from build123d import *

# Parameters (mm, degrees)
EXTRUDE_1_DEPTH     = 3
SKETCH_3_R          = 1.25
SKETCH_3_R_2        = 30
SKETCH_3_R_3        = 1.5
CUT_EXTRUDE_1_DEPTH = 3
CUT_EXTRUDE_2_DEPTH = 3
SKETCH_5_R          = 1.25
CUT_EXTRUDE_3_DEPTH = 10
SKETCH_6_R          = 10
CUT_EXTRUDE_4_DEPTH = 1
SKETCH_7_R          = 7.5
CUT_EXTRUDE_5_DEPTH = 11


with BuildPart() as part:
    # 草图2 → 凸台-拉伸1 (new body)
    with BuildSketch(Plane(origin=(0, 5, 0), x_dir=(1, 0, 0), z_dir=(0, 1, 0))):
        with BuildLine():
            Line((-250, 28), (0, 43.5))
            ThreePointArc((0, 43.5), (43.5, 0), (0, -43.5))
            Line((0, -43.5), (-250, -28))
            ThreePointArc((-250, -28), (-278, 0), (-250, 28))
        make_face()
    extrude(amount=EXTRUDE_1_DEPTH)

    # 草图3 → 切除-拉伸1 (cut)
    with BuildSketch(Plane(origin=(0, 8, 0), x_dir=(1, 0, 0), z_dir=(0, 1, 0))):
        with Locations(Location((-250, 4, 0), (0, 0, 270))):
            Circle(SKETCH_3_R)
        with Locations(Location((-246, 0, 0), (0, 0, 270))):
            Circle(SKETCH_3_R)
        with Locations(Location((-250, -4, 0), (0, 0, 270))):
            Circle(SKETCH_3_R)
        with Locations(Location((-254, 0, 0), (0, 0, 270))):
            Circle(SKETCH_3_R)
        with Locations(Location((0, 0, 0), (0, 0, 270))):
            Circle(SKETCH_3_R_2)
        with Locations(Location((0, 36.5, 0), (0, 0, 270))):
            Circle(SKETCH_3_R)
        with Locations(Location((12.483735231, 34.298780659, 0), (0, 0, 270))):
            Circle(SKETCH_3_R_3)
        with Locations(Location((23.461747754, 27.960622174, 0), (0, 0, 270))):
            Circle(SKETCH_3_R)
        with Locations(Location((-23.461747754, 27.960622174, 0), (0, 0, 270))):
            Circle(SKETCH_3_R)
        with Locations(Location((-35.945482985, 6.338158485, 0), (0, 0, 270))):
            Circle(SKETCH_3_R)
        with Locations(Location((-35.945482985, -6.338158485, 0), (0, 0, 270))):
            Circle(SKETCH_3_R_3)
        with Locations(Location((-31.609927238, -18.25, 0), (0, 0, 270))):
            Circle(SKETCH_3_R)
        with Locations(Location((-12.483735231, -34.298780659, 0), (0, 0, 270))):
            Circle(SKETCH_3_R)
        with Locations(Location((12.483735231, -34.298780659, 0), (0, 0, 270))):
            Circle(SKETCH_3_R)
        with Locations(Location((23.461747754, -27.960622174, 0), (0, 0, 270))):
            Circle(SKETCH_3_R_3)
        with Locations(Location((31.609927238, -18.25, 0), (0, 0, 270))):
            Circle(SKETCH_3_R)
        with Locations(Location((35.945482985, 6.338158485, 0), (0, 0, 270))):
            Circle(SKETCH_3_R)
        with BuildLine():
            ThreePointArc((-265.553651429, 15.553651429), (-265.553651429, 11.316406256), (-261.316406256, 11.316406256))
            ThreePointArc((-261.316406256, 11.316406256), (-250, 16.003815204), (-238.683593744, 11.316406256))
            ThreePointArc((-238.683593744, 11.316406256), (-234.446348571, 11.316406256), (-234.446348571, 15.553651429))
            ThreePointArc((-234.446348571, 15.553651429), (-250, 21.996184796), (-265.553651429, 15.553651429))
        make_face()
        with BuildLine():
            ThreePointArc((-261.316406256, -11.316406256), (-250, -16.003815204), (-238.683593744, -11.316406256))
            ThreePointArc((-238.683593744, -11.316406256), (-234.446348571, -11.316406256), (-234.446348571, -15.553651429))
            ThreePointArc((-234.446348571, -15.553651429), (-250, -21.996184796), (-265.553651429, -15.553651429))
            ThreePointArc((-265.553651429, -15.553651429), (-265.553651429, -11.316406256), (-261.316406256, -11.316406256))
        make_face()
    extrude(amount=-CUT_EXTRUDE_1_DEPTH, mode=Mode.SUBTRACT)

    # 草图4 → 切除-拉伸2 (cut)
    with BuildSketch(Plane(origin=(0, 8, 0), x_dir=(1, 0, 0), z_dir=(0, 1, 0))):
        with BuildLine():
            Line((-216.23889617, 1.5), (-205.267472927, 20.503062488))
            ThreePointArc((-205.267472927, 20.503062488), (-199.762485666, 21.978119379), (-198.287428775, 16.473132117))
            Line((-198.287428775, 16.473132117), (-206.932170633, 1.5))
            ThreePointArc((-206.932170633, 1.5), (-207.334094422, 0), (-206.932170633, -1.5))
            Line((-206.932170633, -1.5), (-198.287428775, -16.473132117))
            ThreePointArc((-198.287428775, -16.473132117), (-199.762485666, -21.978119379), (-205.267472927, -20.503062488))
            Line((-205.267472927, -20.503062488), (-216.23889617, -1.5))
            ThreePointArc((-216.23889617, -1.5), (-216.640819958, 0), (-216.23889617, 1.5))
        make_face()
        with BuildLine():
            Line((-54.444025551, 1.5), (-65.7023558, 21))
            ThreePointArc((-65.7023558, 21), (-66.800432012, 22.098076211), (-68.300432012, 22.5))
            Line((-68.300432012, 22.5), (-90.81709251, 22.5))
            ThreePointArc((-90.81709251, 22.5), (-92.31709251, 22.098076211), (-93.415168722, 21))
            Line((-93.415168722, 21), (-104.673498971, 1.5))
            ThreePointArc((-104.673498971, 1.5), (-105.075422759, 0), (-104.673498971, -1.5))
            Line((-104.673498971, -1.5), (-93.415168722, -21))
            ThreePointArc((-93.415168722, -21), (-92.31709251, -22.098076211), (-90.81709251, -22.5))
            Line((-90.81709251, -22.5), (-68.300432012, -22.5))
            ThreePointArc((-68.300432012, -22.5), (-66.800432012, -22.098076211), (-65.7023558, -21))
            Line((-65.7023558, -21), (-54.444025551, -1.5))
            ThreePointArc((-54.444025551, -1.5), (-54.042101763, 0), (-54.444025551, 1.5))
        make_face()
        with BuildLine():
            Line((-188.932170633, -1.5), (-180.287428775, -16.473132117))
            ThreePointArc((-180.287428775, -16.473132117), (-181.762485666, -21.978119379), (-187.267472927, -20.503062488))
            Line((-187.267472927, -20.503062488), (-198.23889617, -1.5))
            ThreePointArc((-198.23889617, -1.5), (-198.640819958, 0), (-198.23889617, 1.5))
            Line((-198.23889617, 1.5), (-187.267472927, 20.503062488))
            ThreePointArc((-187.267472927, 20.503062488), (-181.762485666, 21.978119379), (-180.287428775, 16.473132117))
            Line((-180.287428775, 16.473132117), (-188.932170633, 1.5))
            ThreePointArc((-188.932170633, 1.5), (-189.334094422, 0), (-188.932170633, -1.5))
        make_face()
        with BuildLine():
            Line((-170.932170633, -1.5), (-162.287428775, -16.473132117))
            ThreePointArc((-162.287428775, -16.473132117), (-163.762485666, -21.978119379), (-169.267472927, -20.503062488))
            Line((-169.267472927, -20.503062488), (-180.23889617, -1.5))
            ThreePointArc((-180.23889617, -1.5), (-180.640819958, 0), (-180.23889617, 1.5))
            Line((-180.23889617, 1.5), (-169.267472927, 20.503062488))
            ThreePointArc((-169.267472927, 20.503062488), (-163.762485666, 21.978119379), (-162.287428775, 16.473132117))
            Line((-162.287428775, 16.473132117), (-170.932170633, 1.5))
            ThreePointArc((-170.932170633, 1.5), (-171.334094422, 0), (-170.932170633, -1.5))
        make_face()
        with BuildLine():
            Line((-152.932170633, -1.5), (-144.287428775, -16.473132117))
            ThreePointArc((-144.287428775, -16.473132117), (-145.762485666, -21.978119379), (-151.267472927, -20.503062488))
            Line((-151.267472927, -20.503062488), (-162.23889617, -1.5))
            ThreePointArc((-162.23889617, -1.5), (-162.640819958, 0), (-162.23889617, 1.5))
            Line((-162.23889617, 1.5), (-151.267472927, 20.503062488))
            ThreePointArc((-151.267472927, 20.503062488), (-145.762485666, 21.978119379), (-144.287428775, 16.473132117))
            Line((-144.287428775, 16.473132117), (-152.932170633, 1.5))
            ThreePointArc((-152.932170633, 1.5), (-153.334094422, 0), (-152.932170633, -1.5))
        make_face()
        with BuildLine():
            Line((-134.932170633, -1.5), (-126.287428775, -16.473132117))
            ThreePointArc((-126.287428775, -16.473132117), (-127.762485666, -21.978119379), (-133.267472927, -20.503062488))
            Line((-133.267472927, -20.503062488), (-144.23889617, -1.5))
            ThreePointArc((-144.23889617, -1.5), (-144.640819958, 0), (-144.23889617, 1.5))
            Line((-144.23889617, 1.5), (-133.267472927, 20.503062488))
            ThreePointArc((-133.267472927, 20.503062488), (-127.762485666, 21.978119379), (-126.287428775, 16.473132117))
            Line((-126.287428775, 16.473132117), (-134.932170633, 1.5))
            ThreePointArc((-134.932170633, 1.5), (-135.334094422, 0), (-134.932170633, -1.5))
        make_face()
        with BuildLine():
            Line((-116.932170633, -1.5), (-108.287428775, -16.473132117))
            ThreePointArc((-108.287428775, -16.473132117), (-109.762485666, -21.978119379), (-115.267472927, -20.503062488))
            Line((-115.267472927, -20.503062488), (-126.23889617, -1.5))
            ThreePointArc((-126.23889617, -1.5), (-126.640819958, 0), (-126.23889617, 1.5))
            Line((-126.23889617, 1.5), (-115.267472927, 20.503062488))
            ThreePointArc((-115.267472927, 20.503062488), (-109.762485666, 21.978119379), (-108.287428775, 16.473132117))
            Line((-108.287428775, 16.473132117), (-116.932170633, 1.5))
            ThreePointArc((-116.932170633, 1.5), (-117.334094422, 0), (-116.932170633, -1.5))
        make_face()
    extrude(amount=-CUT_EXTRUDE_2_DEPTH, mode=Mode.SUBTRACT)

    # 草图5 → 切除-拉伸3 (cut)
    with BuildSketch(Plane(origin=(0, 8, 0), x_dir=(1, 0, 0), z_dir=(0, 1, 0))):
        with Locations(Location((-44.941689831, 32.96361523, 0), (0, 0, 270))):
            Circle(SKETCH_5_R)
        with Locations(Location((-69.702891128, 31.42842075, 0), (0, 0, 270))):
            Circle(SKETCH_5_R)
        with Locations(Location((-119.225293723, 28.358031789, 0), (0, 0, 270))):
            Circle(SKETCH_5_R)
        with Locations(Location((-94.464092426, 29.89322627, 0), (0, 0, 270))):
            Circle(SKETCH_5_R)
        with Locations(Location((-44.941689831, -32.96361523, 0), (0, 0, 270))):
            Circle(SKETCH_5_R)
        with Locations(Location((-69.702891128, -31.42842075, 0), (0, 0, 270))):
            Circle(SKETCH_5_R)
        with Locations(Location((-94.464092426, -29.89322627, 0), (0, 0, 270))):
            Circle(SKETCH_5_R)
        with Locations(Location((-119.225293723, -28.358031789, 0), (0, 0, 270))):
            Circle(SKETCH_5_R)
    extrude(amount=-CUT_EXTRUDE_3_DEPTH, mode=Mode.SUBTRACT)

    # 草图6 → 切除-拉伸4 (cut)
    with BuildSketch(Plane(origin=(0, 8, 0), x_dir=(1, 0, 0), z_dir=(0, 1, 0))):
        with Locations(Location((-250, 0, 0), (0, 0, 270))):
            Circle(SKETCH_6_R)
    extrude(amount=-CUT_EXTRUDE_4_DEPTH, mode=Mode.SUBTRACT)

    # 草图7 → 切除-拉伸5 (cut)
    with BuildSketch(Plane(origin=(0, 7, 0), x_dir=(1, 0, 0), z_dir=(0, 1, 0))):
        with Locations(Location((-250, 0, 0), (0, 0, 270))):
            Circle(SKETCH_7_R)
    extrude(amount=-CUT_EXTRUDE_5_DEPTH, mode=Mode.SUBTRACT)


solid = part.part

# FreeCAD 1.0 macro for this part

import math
import FreeCAD as App
import Part
import Sketcher
Q = App.Units.Quantity

doc = App.newDocument("Part")
body = doc.addObject("PartDesign::Body", "Body")

# Sketch on XZ plane
sketch1 = body.newObject("Sketcher::SketchObject", "Sketch")
sketch1.AttachmentSupport = (doc.getObject("XZ_Plane"), [""])
sketch1.MapMode = "FlatFace"
sketch1.AttachmentOffset = App.Placement(App.Vector(0, 0, -5), App.Rotation())
sketch1.addGeometry([
    Part.LineSegment(App.Vector(0, -44, 0), App.Vector(-250, -28, 0)),
    Part.ArcOfCircle(Part.Circle(App.Vector(-250, 0, 0), App.Vector(0, 0, 1), 28), math.radians(90), math.radians(270)),
    Part.LineSegment(App.Vector(-250, 28, 0), App.Vector(0, 44, 0)),
    Part.ArcOfCircle(Part.Circle(App.Vector(0, 0, 0), App.Vector(0, 0, 1), 44), math.radians(-90), math.radians(90)),
], False)
sketch1.addConstraint([
    Sketcher.Constraint("Coincident", 0, 2, 1, 2),
    Sketcher.Constraint("Coincident", 1, 1, 2, 1),
    Sketcher.Constraint("Coincident", 2, 2, 3, 2),
    Sketcher.Constraint("Coincident", 3, 1, 0, 1),
    Sketcher.Constraint("Coincident", 3, 3, -1, 1),
    Sketcher.Constraint("Symmetric", 0, 2, 1, 1, -1),
    Sketcher.Constraint("PointOnObject", 2, 2, -2),
    Sketcher.Constraint("PointOnObject", 3, 1, -2),
    Sketcher.Constraint("Vertical", 1, 3, 0, 2),
    Sketcher.Constraint("Radius", 1, Q("28 mm")),
    Sketcher.Constraint("Radius", 3, Q("43.5 mm")),
    Sketcher.Constraint("DistanceX", 1, 3, -1, 1, Q("250 mm")),
])
pad1 = body.newObject("PartDesign::Pad", "Pad")
pad1.Profile = sketch1
pad1.Length = 3
pad1.Reversed = True

# Sketch on XZ plane
sketch2 = body.newObject("Sketcher::SketchObject", "Sketch001")
sketch2.AttachmentSupport = (doc.getObject("XZ_Plane"), [""])
sketch2.MapMode = "FlatFace"
sketch2.AttachmentOffset = App.Placement(App.Vector(0, 0, -8), App.Rotation())
sketch2.addGeometry([
    Part.Circle(App.Vector(-250, -4, 0), App.Vector(0, 0, 1), 1.2),  # 0
    Part.Circle(App.Vector(-246, 0, 0), App.Vector(0, 0, 1), 1.2),  # 1
    Part.Circle(App.Vector(-250, 4, 0), App.Vector(0, 0, 1), 1.2),  # 2
    Part.Circle(App.Vector(-254, 0, 0), App.Vector(0, 0, 1), 1.2),  # 3
    Part.Circle(App.Vector(0, 0, 0), App.Vector(0, 0, 1), 30),  # 4
    Part.Circle(App.Vector(0, -36.5, 0), App.Vector(0, 0, 1), 1.2),  # 5
    Part.Circle(App.Vector(12.5, -34.3, 0), App.Vector(0, 0, 1), 1.5),  # 6
    Part.Circle(App.Vector(23.5, -28, 0), App.Vector(0, 0, 1), 1.2),  # 7
    Part.Circle(App.Vector(-23.5, -28, 0), App.Vector(0, 0, 1), 1.2),  # 8
    Part.Circle(App.Vector(-35.9, -6.3, 0), App.Vector(0, 0, 1), 1.2),  # 9
    Part.Circle(App.Vector(-35.9, 6.3, 0), App.Vector(0, 0, 1), 1.5),  # 10
    Part.Circle(App.Vector(-31.6, 18.2, 0), App.Vector(0, 0, 1), 1.2),  # 11
    Part.Circle(App.Vector(-12.5, 34.3, 0), App.Vector(0, 0, 1), 1.2),  # 12
    Part.Circle(App.Vector(12.5, 34.3, 0), App.Vector(0, 0, 1), 1.2),  # 13
    Part.Circle(App.Vector(23.5, 28, 0), App.Vector(0, 0, 1), 1.5),  # 14
    Part.Circle(App.Vector(31.6, 18.2, 0), App.Vector(0, 0, 1), 1.2),  # 15
    Part.Circle(App.Vector(35.9, -6.3, 0), App.Vector(0, 0, 1), 1.2),  # 16
    Part.ArcOfCircle(Part.Circle(App.Vector(-263.4, -13.4, 0), App.Vector(0, 0, 1), 3), math.radians(45), math.radians(225)),  # 17
    Part.ArcOfCircle(Part.Circle(App.Vector(-250, 0, 0), App.Vector(0, 0, 1), 16), math.radians(-135), math.radians(-45)),  # 18
    Part.ArcOfCircle(Part.Circle(App.Vector(-236.6, -13.4, 0), App.Vector(0, 0, 1), 3), math.radians(-45), math.radians(135)),  # 19
    Part.ArcOfCircle(Part.Circle(App.Vector(-250, 0, 0), App.Vector(0, 0, 1), 22), math.radians(-135), math.radians(-45)),  # 20
    Part.ArcOfCircle(Part.Circle(App.Vector(-250, 0, 0), App.Vector(0, 0, 1), 16), math.radians(45), math.radians(135)),  # 21
    Part.ArcOfCircle(Part.Circle(App.Vector(-263.4, 13.4, 0), App.Vector(0, 0, 1), 3), math.radians(135), math.radians(315)),  # 22
    Part.ArcOfCircle(Part.Circle(App.Vector(-250, 0, 0), App.Vector(0, 0, 1), 22), math.radians(45), math.radians(135)),  # 23
    Part.ArcOfCircle(Part.Circle(App.Vector(-236.6, 13.4, 0), App.Vector(0, 0, 1), 3), math.radians(-135), math.radians(45)),  # 24
], False)
sketch2.addConstraint([
    Sketcher.Constraint("Tangent", 17, 1, 18, 1),
    Sketcher.Constraint("Tangent", 18, 2, 19, 2),
    Sketcher.Constraint("Tangent", 19, 1, 20, 2),
    Sketcher.Constraint("Tangent", 20, 1, 17, 2),
    Sketcher.Constraint("Tangent", 21, 2, 22, 2),
    Sketcher.Constraint("Tangent", 22, 1, 23, 2),
    Sketcher.Constraint("Tangent", 23, 1, 24, 2),
    Sketcher.Constraint("Tangent", 24, 1, 21, 1),
    Sketcher.Constraint("Coincident", 4, 3, -1, 1),
    Sketcher.Constraint("Coincident", 20, 3, 18, 3),
    Sketcher.Constraint("Coincident", 21, 3, 18, 3),
    Sketcher.Constraint("Coincident", 23, 3, 18, 3),
    Sketcher.Constraint("Equal", 0, 1),
    Sketcher.Constraint("Equal", 1, 2),
    Sketcher.Constraint("Equal", 2, 3),
    Sketcher.Constraint("Equal", 3, 5),
    Sketcher.Constraint("Equal", 5, 7),
    Sketcher.Constraint("Equal", 7, 8),
    Sketcher.Constraint("Equal", 8, 9),
    Sketcher.Constraint("Equal", 6, 10),
    Sketcher.Constraint("Equal", 9, 11),
    Sketcher.Constraint("Equal", 11, 12),
    Sketcher.Constraint("Equal", 12, 13),
    Sketcher.Constraint("Equal", 10, 14),
    Sketcher.Constraint("Equal", 13, 15),
    Sketcher.Constraint("Equal", 15, 16),
    Sketcher.Constraint("Equal", 18, 21),
    Sketcher.Constraint("Equal", 19, 22),
    Sketcher.Constraint("Symmetric", 6, 3, 12, 3, -1, 1),
    Sketcher.Constraint("Symmetric", 8, 3, 14, 3, -1, 1),
    Sketcher.Constraint("Symmetric", 10, 3, 16, 3, -1, 1),
    Sketcher.Constraint("Symmetric", 7, 3, 8, 3, -2),
    Sketcher.Constraint("Symmetric", 12, 3, 13, 3, -2),
    Sketcher.Constraint("Symmetric", 11, 3, 15, 3, -2),
    Sketcher.Constraint("Symmetric", 9, 3, 16, 3, -2),
    Sketcher.Constraint("Symmetric", 0, 3, 2, 3, -1),
    Sketcher.Constraint("Symmetric", 17, 3, 22, 3, -1),
    Sketcher.Constraint("PointOnObject", 1, 3, -1),
    Sketcher.Constraint("PointOnObject", 3, 3, -1),
    Sketcher.Constraint("PointOnObject", 5, 3, -2),
    Sketcher.Constraint("Horizontal", 17, 3, 19, 3),
    Sketcher.Constraint("Horizontal", 22, 3, 24, 3),
    Sketcher.Constraint("Vertical", 2, 3, 18, 3),
    Sketcher.Constraint("Diameter", 4, Q("60 mm")),
    Sketcher.Constraint("Diameter", 6, Q("3 mm")),
    Sketcher.Constraint("Diameter", 0, Q("2.5 mm")),
    Sketcher.Constraint("DistanceX", 0, 3, -1, 1, Q("250 mm")),
    Sketcher.Constraint("DistanceY", 0, 3, -1, 1, Q("4 mm")),
    Sketcher.Constraint("DistanceX", 1, 3, -1, 1, Q("246 mm")),
    Sketcher.Constraint("DistanceX", 3, 3, -1, 1, Q("254 mm")),
    Sketcher.Constraint("DistanceY", 5, 3, -1, 1, Q("36.5 mm")),
    Sketcher.Constraint("DistanceY", -1, 1, 11, 3, Q("18.25 mm")),
    Sketcher.Constraint("Radius", 17, Q("2.996185 mm")),
    Sketcher.Constraint("Radius", 18, Q("16.003815 mm")),
    Sketcher.Constraint("DistanceY", 6, 3, -1, 1, Q("34.298781 mm")),
    Sketcher.Constraint("DistanceY", 9, 3, -1, 1, Q("6.338158 mm")),
    Sketcher.Constraint("DistanceX", 17, 3, -1, 1, Q("263.435029 mm")),
    Sketcher.Constraint("DistanceY", 6, 3, 7, 3, Q("6.338158 mm")),
    Sketcher.Constraint("DistanceX", 9, 3, 6, 3, Q("48.429218 mm")),
    Sketcher.Constraint("DistanceX", 9, 3, 7, 3, Q("59.407231 mm")),
    Sketcher.Constraint("DistanceX", 11, 3, 8, 3, Q("8.148179 mm")),
    Sketcher.Constraint("DistanceX", 12, 3, 13, 3, Q("24.96747 mm")),
])
pocket1 = body.newObject("PartDesign::Pocket", "Pocket")
pocket1.Profile = sketch2
pocket1.Length = 3
pocket1.Reversed = True

# Sketch on XZ plane
sketch3 = body.newObject("Sketcher::SketchObject", "Sketch002")
sketch3.AttachmentSupport = (doc.getObject("XZ_Plane"), [""])
sketch3.MapMode = "FlatFace"
sketch3.AttachmentOffset = App.Placement(App.Vector(0, 0, -8), App.Rotation())
sketch3.addGeometry([
    Part.LineSegment(App.Vector(-205.3, -20.5, 0), App.Vector(-216.2, -1.5, 0)),  # 0
    Part.ArcOfCircle(Part.Circle(App.Vector(-213.6, 0, 0), App.Vector(0, 0, 1), 3), math.radians(150), math.radians(210)),  # 1
    Part.LineSegment(App.Vector(-216.2, 1.5, 0), App.Vector(-205.3, 20.5, 0)),  # 2
    Part.ArcOfCircle(Part.Circle(App.Vector(-201.8, 18.5, 0), App.Vector(0, 0, 1), 4), math.radians(-30), math.radians(150)),  # 3
    Part.LineSegment(App.Vector(-198.3, 16.5, 0), App.Vector(-206.9, 1.5, 0)),  # 4
    Part.ArcOfCircle(Part.Circle(App.Vector(-204.3, 0, 0), App.Vector(0, 0, 1), 3), math.radians(150), math.radians(210)),  # 5
    Part.LineSegment(App.Vector(-206.9, -1.5, 0), App.Vector(-198.3, -16.5, 0)),  # 6
    Part.ArcOfCircle(Part.Circle(App.Vector(-201.8, -18.5, 0), App.Vector(0, 0, 1), 4), math.radians(-150), math.radians(30)),  # 7
    Part.LineSegment(App.Vector(-54.4, -1.5, 0), App.Vector(-65.7, -21, 0)),  # 8
    Part.ArcOfCircle(Part.Circle(App.Vector(-68.3, -19.5, 0), App.Vector(0, 0, 1), 3), math.radians(-90), math.radians(-30)),  # 9
    Part.LineSegment(App.Vector(-68.3, -22.5, 0), App.Vector(-90.8, -22.5, 0)),  # 10
    Part.ArcOfCircle(Part.Circle(App.Vector(-90.8, -19.5, 0), App.Vector(0, 0, 1), 3), math.radians(-150), math.radians(-90)),  # 11
    Part.LineSegment(App.Vector(-93.4, -21, 0), App.Vector(-104.7, -1.5, 0)),  # 12
    Part.ArcOfCircle(Part.Circle(App.Vector(-102.1, 0, 0), App.Vector(0, 0, 1), 3), math.radians(150), math.radians(210)),  # 13
    Part.LineSegment(App.Vector(-104.7, 1.5, 0), App.Vector(-93.4, 21, 0)),  # 14
    Part.ArcOfCircle(Part.Circle(App.Vector(-90.8, 19.5, 0), App.Vector(0, 0, 1), 3), math.radians(90), math.radians(150)),  # 15
    Part.LineSegment(App.Vector(-90.8, 22.5, 0), App.Vector(-68.3, 22.5, 0)),  # 16
    Part.ArcOfCircle(Part.Circle(App.Vector(-68.3, 19.5, 0), App.Vector(0, 0, 1), 3), math.radians(30), math.radians(90)),  # 17
    Part.LineSegment(App.Vector(-65.7, 21, 0), App.Vector(-54.4, 1.5, 0)),  # 18
    Part.ArcOfCircle(Part.Circle(App.Vector(-57, 0, 0), App.Vector(0, 0, 1), 3), math.radians(-30), math.radians(30)),  # 19
    Part.LineSegment(App.Vector(-180.3, 16.5, 0), App.Vector(-188.9, 1.5, 0)),  # 20
    Part.ArcOfCircle(Part.Circle(App.Vector(-186.3, 0, 0), App.Vector(0, 0, 1), 3), math.radians(150), math.radians(210)),  # 21
    Part.LineSegment(App.Vector(-188.9, -1.5, 0), App.Vector(-180.3, -16.5, 0)),  # 22
    Part.ArcOfCircle(Part.Circle(App.Vector(-183.8, -18.5, 0), App.Vector(0, 0, 1), 4), math.radians(-150), math.radians(30)),  # 23
    Part.LineSegment(App.Vector(-187.3, -20.5, 0), App.Vector(-198.2, -1.5, 0)),  # 24
    Part.ArcOfCircle(Part.Circle(App.Vector(-195.6, 0, 0), App.Vector(0, 0, 1), 3), math.radians(150), math.radians(210)),  # 25
    Part.LineSegment(App.Vector(-198.2, 1.5, 0), App.Vector(-187.3, 20.5, 0)),  # 26
    Part.ArcOfCircle(Part.Circle(App.Vector(-183.8, 18.5, 0), App.Vector(0, 0, 1), 4), math.radians(-30), math.radians(150)),  # 27
    Part.LineSegment(App.Vector(-162.3, 16.5, 0), App.Vector(-170.9, 1.5, 0)),  # 28
    Part.ArcOfCircle(Part.Circle(App.Vector(-168.3, 0, 0), App.Vector(0, 0, 1), 3), math.radians(150), math.radians(210)),  # 29
    Part.LineSegment(App.Vector(-170.9, -1.5, 0), App.Vector(-162.3, -16.5, 0)),  # 30
    Part.ArcOfCircle(Part.Circle(App.Vector(-165.8, -18.5, 0), App.Vector(0, 0, 1), 4), math.radians(-150), math.radians(30)),  # 31
    Part.LineSegment(App.Vector(-169.3, -20.5, 0), App.Vector(-180.2, -1.5, 0)),  # 32
    Part.ArcOfCircle(Part.Circle(App.Vector(-177.6, 0, 0), App.Vector(0, 0, 1), 3), math.radians(150), math.radians(210)),  # 33
    Part.LineSegment(App.Vector(-180.2, 1.5, 0), App.Vector(-169.3, 20.5, 0)),  # 34
    Part.ArcOfCircle(Part.Circle(App.Vector(-165.8, 18.5, 0), App.Vector(0, 0, 1), 4), math.radians(-30), math.radians(150)),  # 35
    Part.LineSegment(App.Vector(-144.3, 16.5, 0), App.Vector(-152.9, 1.5, 0)),  # 36
    Part.ArcOfCircle(Part.Circle(App.Vector(-150.3, 0, 0), App.Vector(0, 0, 1), 3), math.radians(150), math.radians(210)),  # 37
    Part.LineSegment(App.Vector(-152.9, -1.5, 0), App.Vector(-144.3, -16.5, 0)),  # 38
    Part.ArcOfCircle(Part.Circle(App.Vector(-147.8, -18.5, 0), App.Vector(0, 0, 1), 4), math.radians(-150), math.radians(30)),  # 39
    Part.LineSegment(App.Vector(-151.3, -20.5, 0), App.Vector(-162.2, -1.5, 0)),  # 40
    Part.ArcOfCircle(Part.Circle(App.Vector(-159.6, 0, 0), App.Vector(0, 0, 1), 3), math.radians(150), math.radians(210)),  # 41
    Part.LineSegment(App.Vector(-162.2, 1.5, 0), App.Vector(-151.3, 20.5, 0)),  # 42
    Part.ArcOfCircle(Part.Circle(App.Vector(-147.8, 18.5, 0), App.Vector(0, 0, 1), 4), math.radians(-30), math.radians(150)),  # 43
    Part.LineSegment(App.Vector(-126.3, 16.5, 0), App.Vector(-134.9, 1.5, 0)),  # 44
    Part.ArcOfCircle(Part.Circle(App.Vector(-132.3, 0, 0), App.Vector(0, 0, 1), 3), math.radians(150), math.radians(210)),  # 45
    Part.LineSegment(App.Vector(-134.9, -1.5, 0), App.Vector(-126.3, -16.5, 0)),  # 46
    Part.ArcOfCircle(Part.Circle(App.Vector(-129.8, -18.5, 0), App.Vector(0, 0, 1), 4), math.radians(-150), math.radians(30)),  # 47
    Part.LineSegment(App.Vector(-133.3, -20.5, 0), App.Vector(-144.2, -1.5, 0)),  # 48
    Part.ArcOfCircle(Part.Circle(App.Vector(-141.6, 0, 0), App.Vector(0, 0, 1), 3), math.radians(150), math.radians(210)),  # 49
    Part.LineSegment(App.Vector(-144.2, 1.5, 0), App.Vector(-133.3, 20.5, 0)),  # 50
    Part.ArcOfCircle(Part.Circle(App.Vector(-129.8, 18.5, 0), App.Vector(0, 0, 1), 4), math.radians(-30), math.radians(150)),  # 51
    Part.LineSegment(App.Vector(-108.3, 16.5, 0), App.Vector(-116.9, 1.5, 0)),  # 52
    Part.ArcOfCircle(Part.Circle(App.Vector(-114.3, 0, 0), App.Vector(0, 0, 1), 3), math.radians(150), math.radians(210)),  # 53
    Part.LineSegment(App.Vector(-116.9, -1.5, 0), App.Vector(-108.3, -16.5, 0)),  # 54
    Part.ArcOfCircle(Part.Circle(App.Vector(-111.8, -18.5, 0), App.Vector(0, 0, 1), 4), math.radians(-150), math.radians(30)),  # 55
    Part.LineSegment(App.Vector(-115.3, -20.5, 0), App.Vector(-126.2, -1.5, 0)),  # 56
    Part.ArcOfCircle(Part.Circle(App.Vector(-123.6, 0, 0), App.Vector(0, 0, 1), 3), math.radians(150), math.radians(210)),  # 57
    Part.LineSegment(App.Vector(-126.2, 1.5, 0), App.Vector(-115.3, 20.5, 0)),  # 58
    Part.ArcOfCircle(Part.Circle(App.Vector(-111.8, 18.5, 0), App.Vector(0, 0, 1), 4), math.radians(-30), math.radians(150)),  # 59
], False)
sketch3.addConstraint([
    Sketcher.Constraint("Tangent", 0, 2, 1, 2),
    Sketcher.Constraint("Tangent", 1, 1, 2, 1),
    Sketcher.Constraint("Tangent", 2, 2, 3, 2),
    Sketcher.Constraint("Tangent", 3, 1, 4, 1),
    Sketcher.Constraint("Tangent", 4, 2, 5, 1),
    Sketcher.Constraint("Tangent", 5, 2, 6, 1),
    Sketcher.Constraint("Tangent", 6, 2, 7, 2),
    Sketcher.Constraint("Tangent", 7, 1, 0, 1),
    Sketcher.Constraint("Tangent", 8, 2, 9, 2),
    Sketcher.Constraint("Tangent", 9, 1, 10, 1),
    Sketcher.Constraint("Tangent", 10, 2, 11, 2),
    Sketcher.Constraint("Tangent", 11, 1, 12, 1),
    Sketcher.Constraint("Tangent", 12, 2, 13, 2),
    Sketcher.Constraint("Tangent", 13, 1, 14, 1),
    Sketcher.Constraint("Tangent", 14, 2, 15, 2),
    Sketcher.Constraint("Tangent", 15, 1, 16, 1),
    Sketcher.Constraint("Tangent", 16, 2, 17, 2),
    Sketcher.Constraint("Tangent", 17, 1, 18, 1),
    Sketcher.Constraint("Tangent", 18, 2, 19, 2),
    Sketcher.Constraint("Tangent", 19, 1, 8, 1),
    Sketcher.Constraint("Tangent", 20, 2, 21, 1),
    Sketcher.Constraint("Tangent", 21, 2, 22, 1),
    Sketcher.Constraint("Tangent", 22, 2, 23, 2),
    Sketcher.Constraint("Tangent", 23, 1, 24, 1),
    Sketcher.Constraint("Tangent", 24, 2, 25, 2),
    Sketcher.Constraint("Tangent", 25, 1, 26, 1),
    Sketcher.Constraint("Tangent", 26, 2, 27, 2),
    Sketcher.Constraint("Tangent", 27, 1, 20, 1),
    Sketcher.Constraint("Tangent", 28, 2, 29, 1),
    Sketcher.Constraint("Tangent", 29, 2, 30, 1),
    Sketcher.Constraint("Tangent", 30, 2, 31, 2),
    Sketcher.Constraint("Tangent", 31, 1, 32, 1),
    Sketcher.Constraint("Tangent", 32, 2, 33, 2),
    Sketcher.Constraint("Tangent", 33, 1, 34, 1),
    Sketcher.Constraint("Tangent", 34, 2, 35, 2),
    Sketcher.Constraint("Tangent", 35, 1, 28, 1),
    Sketcher.Constraint("Tangent", 36, 2, 37, 1),
    Sketcher.Constraint("Tangent", 37, 2, 38, 1),
    Sketcher.Constraint("Tangent", 38, 2, 39, 2),
    Sketcher.Constraint("Tangent", 39, 1, 40, 1),
    Sketcher.Constraint("Tangent", 40, 2, 41, 2),
    Sketcher.Constraint("Tangent", 41, 1, 42, 1),
    Sketcher.Constraint("Tangent", 42, 2, 43, 2),
    Sketcher.Constraint("Tangent", 43, 1, 36, 1),
    Sketcher.Constraint("Tangent", 44, 2, 45, 1),
    Sketcher.Constraint("Tangent", 45, 2, 46, 1),
    Sketcher.Constraint("Tangent", 46, 2, 47, 2),
    Sketcher.Constraint("Tangent", 47, 1, 48, 1),
    Sketcher.Constraint("Tangent", 48, 2, 49, 2),
    Sketcher.Constraint("Tangent", 49, 1, 50, 1),
    Sketcher.Constraint("Tangent", 50, 2, 51, 2),
    Sketcher.Constraint("Tangent", 51, 1, 44, 1),
    Sketcher.Constraint("Tangent", 52, 2, 53, 1),
    Sketcher.Constraint("Tangent", 53, 2, 54, 1),
    Sketcher.Constraint("Tangent", 54, 2, 55, 2),
    Sketcher.Constraint("Tangent", 55, 1, 56, 1),
    Sketcher.Constraint("Tangent", 56, 2, 57, 2),
    Sketcher.Constraint("Tangent", 57, 1, 58, 1),
    Sketcher.Constraint("Tangent", 58, 2, 59, 2),
    Sketcher.Constraint("Tangent", 59, 1, 52, 1),
    Sketcher.Constraint("Horizontal", 10),
    Sketcher.Constraint("Horizontal", 16),
    Sketcher.Constraint("Equal", 1, 5),
    Sketcher.Constraint("Equal", 3, 7),
    Sketcher.Constraint("Equal", 5, 9),
    Sketcher.Constraint("Equal", 9, 11),
    Sketcher.Constraint("Equal", 11, 13),
    Sketcher.Constraint("Equal", 13, 15),
    Sketcher.Constraint("Equal", 15, 17),
    Sketcher.Constraint("Equal", 17, 19),
    Sketcher.Constraint("Equal", 19, 21),
    Sketcher.Constraint("Equal", 7, 23),
    Sketcher.Constraint("Equal", 21, 25),
    Sketcher.Constraint("Equal", 23, 27),
    Sketcher.Constraint("Equal", 25, 29),
    Sketcher.Constraint("Equal", 27, 31),
    Sketcher.Constraint("Equal", 29, 33),
    Sketcher.Constraint("Equal", 31, 35),
    Sketcher.Constraint("Equal", 33, 37),
    Sketcher.Constraint("Equal", 35, 39),
    Sketcher.Constraint("Equal", 37, 41),
    Sketcher.Constraint("Equal", 39, 43),
    Sketcher.Constraint("Equal", 41, 45),
    Sketcher.Constraint("Equal", 43, 47),
    Sketcher.Constraint("Equal", 45, 49),
    Sketcher.Constraint("Equal", 47, 51),
    Sketcher.Constraint("Equal", 49, 53),
    Sketcher.Constraint("Equal", 51, 55),
    Sketcher.Constraint("Equal", 53, 57),
    Sketcher.Constraint("Equal", 55, 59),
    Sketcher.Constraint("Symmetric", 3, 3, 7, 3, -1),
    Sketcher.Constraint("Symmetric", 11, 3, 15, 3, -1),
    Sketcher.Constraint("Symmetric", 23, 3, 27, 3, -1),
    Sketcher.Constraint("Symmetric", 31, 3, 35, 3, -1),
    Sketcher.Constraint("Symmetric", 39, 3, 43, 3, -1),
    Sketcher.Constraint("Symmetric", 47, 3, 51, 3, -1),
    Sketcher.Constraint("Symmetric", 55, 3, 59, 3, -1),
    Sketcher.Constraint("Symmetric", 8, 2, 17, 1, -1),
    Sketcher.Constraint("PointOnObject", 1, 3, -1),
    Sketcher.Constraint("PointOnObject", 5, 3, -1),
    Sketcher.Constraint("PointOnObject", 13, 3, -1),
    Sketcher.Constraint("PointOnObject", 21, 3, -1),
    Sketcher.Constraint("PointOnObject", 25, 3, -1),
    Sketcher.Constraint("PointOnObject", 29, 3, -1),
    Sketcher.Constraint("PointOnObject", 33, 3, -1),
    Sketcher.Constraint("PointOnObject", 37, 3, -1),
    Sketcher.Constraint("PointOnObject", 41, 3, -1),
    Sketcher.Constraint("PointOnObject", 45, 3, -1),
    Sketcher.Constraint("PointOnObject", 49, 3, -1),
    Sketcher.Constraint("PointOnObject", 53, 3, -1),
    Sketcher.Constraint("PointOnObject", 57, 3, -1),
    Sketcher.Constraint("Parallel", 2, 4),
    Sketcher.Constraint("Parallel", 4, 8),
    Sketcher.Constraint("Parallel", 6, 12),
    Sketcher.Constraint("Parallel", 14, 20),
    Sketcher.Constraint("Parallel", 22, 24),
    Sketcher.Constraint("Parallel", 26, 28),
    Sketcher.Constraint("Parallel", 30, 32),
    Sketcher.Constraint("Parallel", 34, 36),
    Sketcher.Constraint("Parallel", 38, 40),
    Sketcher.Constraint("Parallel", 42, 44),
    Sketcher.Constraint("Parallel", 46, 48),
    Sketcher.Constraint("Parallel", 50, 52),
    Sketcher.Constraint("Parallel", 54, 56),
    Sketcher.Constraint("Horizontal", 7, 3, 23, 3),
    Sketcher.Constraint("Horizontal", 23, 3, 31, 3),
    Sketcher.Constraint("Horizontal", 31, 3, 39, 3),
    Sketcher.Constraint("Horizontal", 39, 3, 47, 3),
    Sketcher.Constraint("Horizontal", 47, 3, 55, 3),
    Sketcher.Constraint("Radius", 1, Q("3 mm")),
    Sketcher.Constraint("Angle", 0, Q("120 deg")),
    Sketcher.Constraint("DistanceY", 8, 2, -1, 1, Q("21 mm")),
    Sketcher.Constraint("Radius", 3, Q("4.02993 mm")),
    Sketcher.Constraint("DistanceX", 10, 2, 10, 1, Q("22.51666 mm")),
    Sketcher.Constraint("DistanceX", 19, 3, -1, 1, Q("57.042102 mm")),
    Sketcher.Constraint("DistanceX", 1, 3, -1, 1, Q("213.64082 mm")),
    Sketcher.Constraint("DistanceX", 3, 3, -1, 1, Q("201.777451 mm")),
    Sketcher.Constraint("DistanceX", 23, 3, -1, 1, Q("183.777451 mm")),
    Sketcher.Constraint("DistanceX", 31, 3, -1, 1, Q("165.777451 mm")),
    Sketcher.Constraint("DistanceX", 39, 3, -1, 1, Q("147.777451 mm")),
    Sketcher.Constraint("DistanceX", 47, 3, -1, 1, Q("129.777451 mm")),
    Sketcher.Constraint("DistanceX", 55, 3, -1, 1, Q("111.777451 mm")),
])
pocket2 = body.newObject("PartDesign::Pocket", "Pocket001")
pocket2.Profile = sketch3
pocket2.Length = 3
pocket2.Reversed = True

# Sketch on XZ plane
sketch4 = body.newObject("Sketcher::SketchObject", "Sketch003")
sketch4.AttachmentSupport = (doc.getObject("XZ_Plane"), [""])
sketch4.MapMode = "FlatFace"
sketch4.AttachmentOffset = App.Placement(App.Vector(0, 0, -8), App.Rotation())
sketch4.addGeometry([
    Part.Circle(App.Vector(-44.9, -33, 0), App.Vector(0, 0, 1), 1.2),  # 0
    Part.Circle(App.Vector(-69.7, -31.4, 0), App.Vector(0, 0, 1), 1.2),  # 1
    Part.Circle(App.Vector(-119.2, -28.4, 0), App.Vector(0, 0, 1), 1.2),  # 2
    Part.Circle(App.Vector(-94.5, -29.9, 0), App.Vector(0, 0, 1), 1.2),  # 3
    Part.Circle(App.Vector(-44.9, 33, 0), App.Vector(0, 0, 1), 1.2),  # 4
    Part.Circle(App.Vector(-69.7, 31.4, 0), App.Vector(0, 0, 1), 1.2),  # 5
    Part.Circle(App.Vector(-94.5, 29.9, 0), App.Vector(0, 0, 1), 1.2),  # 6
    Part.Circle(App.Vector(-119.2, 28.4, 0), App.Vector(0, 0, 1), 1.2),  # 7
], False)
sketch4.addConstraint([
    Sketcher.Constraint("Equal", 0, 1),
    Sketcher.Constraint("Equal", 1, 2),
    Sketcher.Constraint("Equal", 2, 3),
    Sketcher.Constraint("Equal", 3, 4),
    Sketcher.Constraint("Equal", 4, 5),
    Sketcher.Constraint("Equal", 5, 6),
    Sketcher.Constraint("Equal", 6, 7),
    Sketcher.Constraint("Symmetric", 0, 3, 4, 3, -1),
    Sketcher.Constraint("Symmetric", 1, 3, 5, 3, -1),
    Sketcher.Constraint("Symmetric", 3, 3, 6, 3, -1),
    Sketcher.Constraint("Symmetric", 2, 3, 7, 3, -1),
    Sketcher.Constraint("Diameter", 0, Q("2.5 mm")),
    Sketcher.Constraint("DistanceX", 1, 3, 0, 3, Q("24.761201 mm")),
    Sketcher.Constraint("DistanceX", 2, 3, 3, 3, Q("24.761201 mm")),
    Sketcher.Constraint("DistanceX", 3, 3, 1, 3, Q("24.761201 mm")),
    Sketcher.Constraint("DistanceX", 0, 3, -1, 1, Q("44.94169 mm")),
    Sketcher.Constraint("DistanceY", 1, 3, -1, 1, Q("31.428421 mm")),
    Sketcher.Constraint("DistanceY", 2, 3, -1, 1, Q("28.358032 mm")),
    Sketcher.Constraint("DistanceY", 0, 3, 3, 3, Q("3.070389 mm")),
    Sketcher.Constraint("DistanceY", 0, 3, 4, 3, Q("65.92723 mm")),
])
pocket3 = body.newObject("PartDesign::Pocket", "Pocket002")
pocket3.Profile = sketch4
pocket3.Length = 10
pocket3.Reversed = True

# Sketch on XZ plane
sketch5 = body.newObject("Sketcher::SketchObject", "Sketch004")
sketch5.AttachmentSupport = (doc.getObject("XZ_Plane"), [""])
sketch5.MapMode = "FlatFace"
sketch5.AttachmentOffset = App.Placement(App.Vector(0, 0, -8), App.Rotation())
sketch5.addGeometry(Part.Circle(App.Vector(-250, 0, 0), App.Vector(0, 0, 1), 10), False)
sketch5.addConstraint([
    Sketcher.Constraint("PointOnObject", 0, 3, -1),
    Sketcher.Constraint("Diameter", 0, Q("20 mm")),
    Sketcher.Constraint("DistanceX", 0, 3, -1, 1, Q("250 mm")),
])
pocket4 = body.newObject("PartDesign::Pocket", "Pocket003")
pocket4.Profile = sketch5
pocket4.Length = 1
pocket4.Reversed = True

# Sketch on XZ plane
sketch6 = body.newObject("Sketcher::SketchObject", "Sketch005")
sketch6.AttachmentSupport = (doc.getObject("XZ_Plane"), [""])
sketch6.MapMode = "FlatFace"
sketch6.AttachmentOffset = App.Placement(App.Vector(0, 0, -7), App.Rotation())
sketch6.addGeometry(Part.Circle(App.Vector(-250, 0, 0), App.Vector(0, 0, 1), 8), False)
sketch6.addConstraint([
    Sketcher.Constraint("PointOnObject", 0, 3, -1),
    Sketcher.Constraint("Diameter", 0, Q("15 mm")),
    Sketcher.Constraint("DistanceX", 0, 3, -1, 1, Q("250 mm")),
])
pocket5 = body.newObject("PartDesign::Pocket", "Pocket004")
pocket5.Profile = sketch6
pocket5.Length = 11
pocket5.Reversed = True

doc.recompute()
